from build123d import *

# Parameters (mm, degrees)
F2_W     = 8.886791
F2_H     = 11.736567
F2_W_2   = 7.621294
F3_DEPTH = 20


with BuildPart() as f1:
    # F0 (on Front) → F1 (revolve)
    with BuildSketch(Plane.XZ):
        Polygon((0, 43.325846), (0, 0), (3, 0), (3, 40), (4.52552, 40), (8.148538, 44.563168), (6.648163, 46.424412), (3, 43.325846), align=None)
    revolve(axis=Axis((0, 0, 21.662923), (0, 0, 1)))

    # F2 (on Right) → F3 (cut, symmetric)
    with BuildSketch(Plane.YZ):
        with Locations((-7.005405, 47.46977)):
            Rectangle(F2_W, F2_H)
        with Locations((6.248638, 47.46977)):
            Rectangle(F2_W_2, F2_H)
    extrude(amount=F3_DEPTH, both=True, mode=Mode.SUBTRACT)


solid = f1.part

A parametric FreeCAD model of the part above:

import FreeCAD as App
import Part
import Sketcher
Q = App.Units.Quantity

doc = App.newDocument("Part")
body = doc.addObject("PartDesign::Body", "Body")

# Sketch on XZ plane
sketch1 = body.newObject("Sketcher::SketchObject", "Sketch")
sketch1.AttachmentSupport = (doc.getObject("XZ_Plane"), [""])
sketch1.MapMode = "FlatFace"
sketch1.addGeometry([
    Part.LineSegment(App.Vector(0, 43.325846, 0), App.Vector(0, 0, 0)),  # 0
    Part.LineSegment(App.Vector(0, 0, 0), App.Vector(3, 0, 0)),  # 1
    Part.LineSegment(App.Vector(3, 0, 0), App.Vector(3, 40, 0)),  # 2
    Part.LineSegment(App.Vector(3, 40, 0), App.Vector(4.52552, 40, 0)),  # 3
    Part.LineSegment(App.Vector(4.52552, 40, 0), App.Vector(8.148538, 44.563168, 0)),  # 4
    Part.LineSegment(App.Vector(8.148538, 44.563168, 0), App.Vector(6.648163, 46.424412, 0)),  # 5
    Part.LineSegment(App.Vector(6.648163, 46.424412, 0), App.Vector(3, 43.325846, 0)),  # 6
    Part.LineSegment(App.Vector(3, 43.325846, 0), App.Vector(0, 43.325846, 0)),  # 7
], False)
sketch1.addConstraint([
    Sketcher.Constraint("Coincident", 0, 2, 1, 1),
    Sketcher.Constraint("Coincident", 1, 2, 2, 1),
    Sketcher.Constraint("Coincident", 2, 2, 3, 1),
    Sketcher.Constraint("Coincident", 3, 2, 4, 1),
    Sketcher.Constraint("Coincident", 4, 2, 5, 1),
    Sketcher.Constraint("Coincident", 5, 2, 6, 1),
    Sketcher.Constraint("Coincident", 6, 2, 7, 1),
    Sketcher.Constraint("Coincident", 7, 2, 0, 1),
    Sketcher.Constraint("Vertical", 0),
    Sketcher.Constraint("Horizontal", 1),
    Sketcher.Constraint("Vertical", 2),
    Sketcher.Constraint("Horizontal", 3),
    Sketcher.Constraint("Horizontal", 7),
    Sketcher.Constraint("Coincident", 0, 2, -1, 1),
    Sketcher.Constraint("Vertical", 2, 2, 6, 2),
    Sketcher.Constraint("DistanceX", 1, 1, 1, 2, Q("3 mm")),
    Sketcher.Constraint("DistanceY", 2, 1, 2, 2, Q("40 mm")),
    Sketcher.Constraint("DistanceX", 3, 1, 3, 2, Q("1.52552 mm")),
    Sketcher.Constraint("Distance", 5, Q("2.390681 mm")),
    Sketcher.Constraint("Distance", 6, Q("4.786461 mm")),
    Sketcher.Constraint("DistanceY", 0, 2, 0, 1, Q("43.325846 mm")),
    Sketcher.Constraint("DistanceY", -1, 1, 5, 2, Q("46.424412 mm")),
    Sketcher.Constraint("DistanceX", 3, 2, 4, 2, Q("3.623018 mm")),
])
revolution = body.newObject("PartDesign::Revolution", "Revolution")
revolution.Profile = sketch1
revolution.ReferenceAxis = (sketch1, ["V_Axis"])
revolution.Angle = 360

# Sketch on YZ plane
sketch2 = body.newObject("Sketcher::SketchObject", "Sketch001")
sketch2.AttachmentSupport = (doc.getObject("YZ_Plane"), [""])
sketch2.MapMode = "FlatFace"
sketch2.addGeometry([
    Part.LineSegment(App.Vector(-11.448801, 53.338054, 0), App.Vector(-11.448801, 41.601487, 0)),  # 0
    Part.LineSegment(App.Vector(-11.448801, 41.601487, 0), App.Vector(-2.562009, 41.601487, 0)),  # 1
    Part.LineSegment(App.Vector(-2.562009, 41.601487, 0), App.Vector(-2.562009, 53.338054, 0)),  # 2
    Part.LineSegment(App.Vector(-2.562009, 53.338054, 0), App.Vector(-11.448801, 53.338054, 0)),  # 3
    Part.LineSegment(App.Vector(2.437991, 53.338054, 0), App.Vector(2.437991, 41.601487, 0)),  # 4
    Part.LineSegment(App.Vector(2.437991, 41.601487, 0), App.Vector(10.059285, 41.601487, 0)),  # 5
    Part.LineSegment(App.Vector(10.059285, 41.601487, 0), App.Vector(10.059285, 53.338054, 0)),  # 6
    Part.LineSegment(App.Vector(10.059285, 53.338054, 0), App.Vector(2.437991, 53.338054, 0)),  # 7
], False)
sketch2.addConstraint([
    Sketcher.Constraint("Coincident", 0, 2, 1, 1),
    Sketcher.Constraint("Coincident", 1, 2, 2, 1),
    Sketcher.Constraint("Coincident", 2, 2, 3, 1),
    Sketcher.Constraint("Coincident", 3, 2, 0, 1),
    Sketcher.Constraint("Coincident", 4, 2, 5, 1),
    Sketcher.Constraint("Coincident", 5, 2, 6, 1),
    Sketcher.Constraint("Coincident", 6, 2, 7, 1),
    Sketcher.Constraint("Coincident", 7, 2, 4, 1),
    Sketcher.Constraint("Vertical", 0),
    Sketcher.Constraint("Horizontal", 1),
    Sketcher.Constraint("Vertical", 2),
    Sketcher.Constraint("Horizontal", 3),
    Sketcher.Constraint("Vertical", 4),
    Sketcher.Constraint("Horizontal", 5),
    Sketcher.Constraint("Vertical", 6),
    Sketcher.Constraint("Horizontal", 7),
    Sketcher.Constraint("Horizontal", 1, 2, 4, 2),
    Sketcher.Constraint("Horizontal", 3, 2, 6, 2),
    Sketcher.Constraint("DistanceX", 1, 2, 4, 2, Q("5 mm")),
    Sketcher.Constraint("DistanceX", 1, 1, 1, 2, Q("8.886791 mm")),
    Sketcher.Constraint("DistanceX", 0, 2, -1, 1, Q("11.448801 mm")),
    Sketcher.Constraint("DistanceX", 5, 1, 5, 2, Q("7.621294 mm")),
    Sketcher.Constraint("DistanceY", 0, 2, 0, 1, Q("11.736567 mm")),
    Sketcher.Constraint("DistanceY", -1, 1, 0, 2, Q("41.601487 mm")),
])
pocket1 = body.newObject("PartDesign::Pocket", "Pocket")
pocket1.Profile = sketch2
pocket1.Length = 40
pocket1.Midplane = True

doc.recompute()
